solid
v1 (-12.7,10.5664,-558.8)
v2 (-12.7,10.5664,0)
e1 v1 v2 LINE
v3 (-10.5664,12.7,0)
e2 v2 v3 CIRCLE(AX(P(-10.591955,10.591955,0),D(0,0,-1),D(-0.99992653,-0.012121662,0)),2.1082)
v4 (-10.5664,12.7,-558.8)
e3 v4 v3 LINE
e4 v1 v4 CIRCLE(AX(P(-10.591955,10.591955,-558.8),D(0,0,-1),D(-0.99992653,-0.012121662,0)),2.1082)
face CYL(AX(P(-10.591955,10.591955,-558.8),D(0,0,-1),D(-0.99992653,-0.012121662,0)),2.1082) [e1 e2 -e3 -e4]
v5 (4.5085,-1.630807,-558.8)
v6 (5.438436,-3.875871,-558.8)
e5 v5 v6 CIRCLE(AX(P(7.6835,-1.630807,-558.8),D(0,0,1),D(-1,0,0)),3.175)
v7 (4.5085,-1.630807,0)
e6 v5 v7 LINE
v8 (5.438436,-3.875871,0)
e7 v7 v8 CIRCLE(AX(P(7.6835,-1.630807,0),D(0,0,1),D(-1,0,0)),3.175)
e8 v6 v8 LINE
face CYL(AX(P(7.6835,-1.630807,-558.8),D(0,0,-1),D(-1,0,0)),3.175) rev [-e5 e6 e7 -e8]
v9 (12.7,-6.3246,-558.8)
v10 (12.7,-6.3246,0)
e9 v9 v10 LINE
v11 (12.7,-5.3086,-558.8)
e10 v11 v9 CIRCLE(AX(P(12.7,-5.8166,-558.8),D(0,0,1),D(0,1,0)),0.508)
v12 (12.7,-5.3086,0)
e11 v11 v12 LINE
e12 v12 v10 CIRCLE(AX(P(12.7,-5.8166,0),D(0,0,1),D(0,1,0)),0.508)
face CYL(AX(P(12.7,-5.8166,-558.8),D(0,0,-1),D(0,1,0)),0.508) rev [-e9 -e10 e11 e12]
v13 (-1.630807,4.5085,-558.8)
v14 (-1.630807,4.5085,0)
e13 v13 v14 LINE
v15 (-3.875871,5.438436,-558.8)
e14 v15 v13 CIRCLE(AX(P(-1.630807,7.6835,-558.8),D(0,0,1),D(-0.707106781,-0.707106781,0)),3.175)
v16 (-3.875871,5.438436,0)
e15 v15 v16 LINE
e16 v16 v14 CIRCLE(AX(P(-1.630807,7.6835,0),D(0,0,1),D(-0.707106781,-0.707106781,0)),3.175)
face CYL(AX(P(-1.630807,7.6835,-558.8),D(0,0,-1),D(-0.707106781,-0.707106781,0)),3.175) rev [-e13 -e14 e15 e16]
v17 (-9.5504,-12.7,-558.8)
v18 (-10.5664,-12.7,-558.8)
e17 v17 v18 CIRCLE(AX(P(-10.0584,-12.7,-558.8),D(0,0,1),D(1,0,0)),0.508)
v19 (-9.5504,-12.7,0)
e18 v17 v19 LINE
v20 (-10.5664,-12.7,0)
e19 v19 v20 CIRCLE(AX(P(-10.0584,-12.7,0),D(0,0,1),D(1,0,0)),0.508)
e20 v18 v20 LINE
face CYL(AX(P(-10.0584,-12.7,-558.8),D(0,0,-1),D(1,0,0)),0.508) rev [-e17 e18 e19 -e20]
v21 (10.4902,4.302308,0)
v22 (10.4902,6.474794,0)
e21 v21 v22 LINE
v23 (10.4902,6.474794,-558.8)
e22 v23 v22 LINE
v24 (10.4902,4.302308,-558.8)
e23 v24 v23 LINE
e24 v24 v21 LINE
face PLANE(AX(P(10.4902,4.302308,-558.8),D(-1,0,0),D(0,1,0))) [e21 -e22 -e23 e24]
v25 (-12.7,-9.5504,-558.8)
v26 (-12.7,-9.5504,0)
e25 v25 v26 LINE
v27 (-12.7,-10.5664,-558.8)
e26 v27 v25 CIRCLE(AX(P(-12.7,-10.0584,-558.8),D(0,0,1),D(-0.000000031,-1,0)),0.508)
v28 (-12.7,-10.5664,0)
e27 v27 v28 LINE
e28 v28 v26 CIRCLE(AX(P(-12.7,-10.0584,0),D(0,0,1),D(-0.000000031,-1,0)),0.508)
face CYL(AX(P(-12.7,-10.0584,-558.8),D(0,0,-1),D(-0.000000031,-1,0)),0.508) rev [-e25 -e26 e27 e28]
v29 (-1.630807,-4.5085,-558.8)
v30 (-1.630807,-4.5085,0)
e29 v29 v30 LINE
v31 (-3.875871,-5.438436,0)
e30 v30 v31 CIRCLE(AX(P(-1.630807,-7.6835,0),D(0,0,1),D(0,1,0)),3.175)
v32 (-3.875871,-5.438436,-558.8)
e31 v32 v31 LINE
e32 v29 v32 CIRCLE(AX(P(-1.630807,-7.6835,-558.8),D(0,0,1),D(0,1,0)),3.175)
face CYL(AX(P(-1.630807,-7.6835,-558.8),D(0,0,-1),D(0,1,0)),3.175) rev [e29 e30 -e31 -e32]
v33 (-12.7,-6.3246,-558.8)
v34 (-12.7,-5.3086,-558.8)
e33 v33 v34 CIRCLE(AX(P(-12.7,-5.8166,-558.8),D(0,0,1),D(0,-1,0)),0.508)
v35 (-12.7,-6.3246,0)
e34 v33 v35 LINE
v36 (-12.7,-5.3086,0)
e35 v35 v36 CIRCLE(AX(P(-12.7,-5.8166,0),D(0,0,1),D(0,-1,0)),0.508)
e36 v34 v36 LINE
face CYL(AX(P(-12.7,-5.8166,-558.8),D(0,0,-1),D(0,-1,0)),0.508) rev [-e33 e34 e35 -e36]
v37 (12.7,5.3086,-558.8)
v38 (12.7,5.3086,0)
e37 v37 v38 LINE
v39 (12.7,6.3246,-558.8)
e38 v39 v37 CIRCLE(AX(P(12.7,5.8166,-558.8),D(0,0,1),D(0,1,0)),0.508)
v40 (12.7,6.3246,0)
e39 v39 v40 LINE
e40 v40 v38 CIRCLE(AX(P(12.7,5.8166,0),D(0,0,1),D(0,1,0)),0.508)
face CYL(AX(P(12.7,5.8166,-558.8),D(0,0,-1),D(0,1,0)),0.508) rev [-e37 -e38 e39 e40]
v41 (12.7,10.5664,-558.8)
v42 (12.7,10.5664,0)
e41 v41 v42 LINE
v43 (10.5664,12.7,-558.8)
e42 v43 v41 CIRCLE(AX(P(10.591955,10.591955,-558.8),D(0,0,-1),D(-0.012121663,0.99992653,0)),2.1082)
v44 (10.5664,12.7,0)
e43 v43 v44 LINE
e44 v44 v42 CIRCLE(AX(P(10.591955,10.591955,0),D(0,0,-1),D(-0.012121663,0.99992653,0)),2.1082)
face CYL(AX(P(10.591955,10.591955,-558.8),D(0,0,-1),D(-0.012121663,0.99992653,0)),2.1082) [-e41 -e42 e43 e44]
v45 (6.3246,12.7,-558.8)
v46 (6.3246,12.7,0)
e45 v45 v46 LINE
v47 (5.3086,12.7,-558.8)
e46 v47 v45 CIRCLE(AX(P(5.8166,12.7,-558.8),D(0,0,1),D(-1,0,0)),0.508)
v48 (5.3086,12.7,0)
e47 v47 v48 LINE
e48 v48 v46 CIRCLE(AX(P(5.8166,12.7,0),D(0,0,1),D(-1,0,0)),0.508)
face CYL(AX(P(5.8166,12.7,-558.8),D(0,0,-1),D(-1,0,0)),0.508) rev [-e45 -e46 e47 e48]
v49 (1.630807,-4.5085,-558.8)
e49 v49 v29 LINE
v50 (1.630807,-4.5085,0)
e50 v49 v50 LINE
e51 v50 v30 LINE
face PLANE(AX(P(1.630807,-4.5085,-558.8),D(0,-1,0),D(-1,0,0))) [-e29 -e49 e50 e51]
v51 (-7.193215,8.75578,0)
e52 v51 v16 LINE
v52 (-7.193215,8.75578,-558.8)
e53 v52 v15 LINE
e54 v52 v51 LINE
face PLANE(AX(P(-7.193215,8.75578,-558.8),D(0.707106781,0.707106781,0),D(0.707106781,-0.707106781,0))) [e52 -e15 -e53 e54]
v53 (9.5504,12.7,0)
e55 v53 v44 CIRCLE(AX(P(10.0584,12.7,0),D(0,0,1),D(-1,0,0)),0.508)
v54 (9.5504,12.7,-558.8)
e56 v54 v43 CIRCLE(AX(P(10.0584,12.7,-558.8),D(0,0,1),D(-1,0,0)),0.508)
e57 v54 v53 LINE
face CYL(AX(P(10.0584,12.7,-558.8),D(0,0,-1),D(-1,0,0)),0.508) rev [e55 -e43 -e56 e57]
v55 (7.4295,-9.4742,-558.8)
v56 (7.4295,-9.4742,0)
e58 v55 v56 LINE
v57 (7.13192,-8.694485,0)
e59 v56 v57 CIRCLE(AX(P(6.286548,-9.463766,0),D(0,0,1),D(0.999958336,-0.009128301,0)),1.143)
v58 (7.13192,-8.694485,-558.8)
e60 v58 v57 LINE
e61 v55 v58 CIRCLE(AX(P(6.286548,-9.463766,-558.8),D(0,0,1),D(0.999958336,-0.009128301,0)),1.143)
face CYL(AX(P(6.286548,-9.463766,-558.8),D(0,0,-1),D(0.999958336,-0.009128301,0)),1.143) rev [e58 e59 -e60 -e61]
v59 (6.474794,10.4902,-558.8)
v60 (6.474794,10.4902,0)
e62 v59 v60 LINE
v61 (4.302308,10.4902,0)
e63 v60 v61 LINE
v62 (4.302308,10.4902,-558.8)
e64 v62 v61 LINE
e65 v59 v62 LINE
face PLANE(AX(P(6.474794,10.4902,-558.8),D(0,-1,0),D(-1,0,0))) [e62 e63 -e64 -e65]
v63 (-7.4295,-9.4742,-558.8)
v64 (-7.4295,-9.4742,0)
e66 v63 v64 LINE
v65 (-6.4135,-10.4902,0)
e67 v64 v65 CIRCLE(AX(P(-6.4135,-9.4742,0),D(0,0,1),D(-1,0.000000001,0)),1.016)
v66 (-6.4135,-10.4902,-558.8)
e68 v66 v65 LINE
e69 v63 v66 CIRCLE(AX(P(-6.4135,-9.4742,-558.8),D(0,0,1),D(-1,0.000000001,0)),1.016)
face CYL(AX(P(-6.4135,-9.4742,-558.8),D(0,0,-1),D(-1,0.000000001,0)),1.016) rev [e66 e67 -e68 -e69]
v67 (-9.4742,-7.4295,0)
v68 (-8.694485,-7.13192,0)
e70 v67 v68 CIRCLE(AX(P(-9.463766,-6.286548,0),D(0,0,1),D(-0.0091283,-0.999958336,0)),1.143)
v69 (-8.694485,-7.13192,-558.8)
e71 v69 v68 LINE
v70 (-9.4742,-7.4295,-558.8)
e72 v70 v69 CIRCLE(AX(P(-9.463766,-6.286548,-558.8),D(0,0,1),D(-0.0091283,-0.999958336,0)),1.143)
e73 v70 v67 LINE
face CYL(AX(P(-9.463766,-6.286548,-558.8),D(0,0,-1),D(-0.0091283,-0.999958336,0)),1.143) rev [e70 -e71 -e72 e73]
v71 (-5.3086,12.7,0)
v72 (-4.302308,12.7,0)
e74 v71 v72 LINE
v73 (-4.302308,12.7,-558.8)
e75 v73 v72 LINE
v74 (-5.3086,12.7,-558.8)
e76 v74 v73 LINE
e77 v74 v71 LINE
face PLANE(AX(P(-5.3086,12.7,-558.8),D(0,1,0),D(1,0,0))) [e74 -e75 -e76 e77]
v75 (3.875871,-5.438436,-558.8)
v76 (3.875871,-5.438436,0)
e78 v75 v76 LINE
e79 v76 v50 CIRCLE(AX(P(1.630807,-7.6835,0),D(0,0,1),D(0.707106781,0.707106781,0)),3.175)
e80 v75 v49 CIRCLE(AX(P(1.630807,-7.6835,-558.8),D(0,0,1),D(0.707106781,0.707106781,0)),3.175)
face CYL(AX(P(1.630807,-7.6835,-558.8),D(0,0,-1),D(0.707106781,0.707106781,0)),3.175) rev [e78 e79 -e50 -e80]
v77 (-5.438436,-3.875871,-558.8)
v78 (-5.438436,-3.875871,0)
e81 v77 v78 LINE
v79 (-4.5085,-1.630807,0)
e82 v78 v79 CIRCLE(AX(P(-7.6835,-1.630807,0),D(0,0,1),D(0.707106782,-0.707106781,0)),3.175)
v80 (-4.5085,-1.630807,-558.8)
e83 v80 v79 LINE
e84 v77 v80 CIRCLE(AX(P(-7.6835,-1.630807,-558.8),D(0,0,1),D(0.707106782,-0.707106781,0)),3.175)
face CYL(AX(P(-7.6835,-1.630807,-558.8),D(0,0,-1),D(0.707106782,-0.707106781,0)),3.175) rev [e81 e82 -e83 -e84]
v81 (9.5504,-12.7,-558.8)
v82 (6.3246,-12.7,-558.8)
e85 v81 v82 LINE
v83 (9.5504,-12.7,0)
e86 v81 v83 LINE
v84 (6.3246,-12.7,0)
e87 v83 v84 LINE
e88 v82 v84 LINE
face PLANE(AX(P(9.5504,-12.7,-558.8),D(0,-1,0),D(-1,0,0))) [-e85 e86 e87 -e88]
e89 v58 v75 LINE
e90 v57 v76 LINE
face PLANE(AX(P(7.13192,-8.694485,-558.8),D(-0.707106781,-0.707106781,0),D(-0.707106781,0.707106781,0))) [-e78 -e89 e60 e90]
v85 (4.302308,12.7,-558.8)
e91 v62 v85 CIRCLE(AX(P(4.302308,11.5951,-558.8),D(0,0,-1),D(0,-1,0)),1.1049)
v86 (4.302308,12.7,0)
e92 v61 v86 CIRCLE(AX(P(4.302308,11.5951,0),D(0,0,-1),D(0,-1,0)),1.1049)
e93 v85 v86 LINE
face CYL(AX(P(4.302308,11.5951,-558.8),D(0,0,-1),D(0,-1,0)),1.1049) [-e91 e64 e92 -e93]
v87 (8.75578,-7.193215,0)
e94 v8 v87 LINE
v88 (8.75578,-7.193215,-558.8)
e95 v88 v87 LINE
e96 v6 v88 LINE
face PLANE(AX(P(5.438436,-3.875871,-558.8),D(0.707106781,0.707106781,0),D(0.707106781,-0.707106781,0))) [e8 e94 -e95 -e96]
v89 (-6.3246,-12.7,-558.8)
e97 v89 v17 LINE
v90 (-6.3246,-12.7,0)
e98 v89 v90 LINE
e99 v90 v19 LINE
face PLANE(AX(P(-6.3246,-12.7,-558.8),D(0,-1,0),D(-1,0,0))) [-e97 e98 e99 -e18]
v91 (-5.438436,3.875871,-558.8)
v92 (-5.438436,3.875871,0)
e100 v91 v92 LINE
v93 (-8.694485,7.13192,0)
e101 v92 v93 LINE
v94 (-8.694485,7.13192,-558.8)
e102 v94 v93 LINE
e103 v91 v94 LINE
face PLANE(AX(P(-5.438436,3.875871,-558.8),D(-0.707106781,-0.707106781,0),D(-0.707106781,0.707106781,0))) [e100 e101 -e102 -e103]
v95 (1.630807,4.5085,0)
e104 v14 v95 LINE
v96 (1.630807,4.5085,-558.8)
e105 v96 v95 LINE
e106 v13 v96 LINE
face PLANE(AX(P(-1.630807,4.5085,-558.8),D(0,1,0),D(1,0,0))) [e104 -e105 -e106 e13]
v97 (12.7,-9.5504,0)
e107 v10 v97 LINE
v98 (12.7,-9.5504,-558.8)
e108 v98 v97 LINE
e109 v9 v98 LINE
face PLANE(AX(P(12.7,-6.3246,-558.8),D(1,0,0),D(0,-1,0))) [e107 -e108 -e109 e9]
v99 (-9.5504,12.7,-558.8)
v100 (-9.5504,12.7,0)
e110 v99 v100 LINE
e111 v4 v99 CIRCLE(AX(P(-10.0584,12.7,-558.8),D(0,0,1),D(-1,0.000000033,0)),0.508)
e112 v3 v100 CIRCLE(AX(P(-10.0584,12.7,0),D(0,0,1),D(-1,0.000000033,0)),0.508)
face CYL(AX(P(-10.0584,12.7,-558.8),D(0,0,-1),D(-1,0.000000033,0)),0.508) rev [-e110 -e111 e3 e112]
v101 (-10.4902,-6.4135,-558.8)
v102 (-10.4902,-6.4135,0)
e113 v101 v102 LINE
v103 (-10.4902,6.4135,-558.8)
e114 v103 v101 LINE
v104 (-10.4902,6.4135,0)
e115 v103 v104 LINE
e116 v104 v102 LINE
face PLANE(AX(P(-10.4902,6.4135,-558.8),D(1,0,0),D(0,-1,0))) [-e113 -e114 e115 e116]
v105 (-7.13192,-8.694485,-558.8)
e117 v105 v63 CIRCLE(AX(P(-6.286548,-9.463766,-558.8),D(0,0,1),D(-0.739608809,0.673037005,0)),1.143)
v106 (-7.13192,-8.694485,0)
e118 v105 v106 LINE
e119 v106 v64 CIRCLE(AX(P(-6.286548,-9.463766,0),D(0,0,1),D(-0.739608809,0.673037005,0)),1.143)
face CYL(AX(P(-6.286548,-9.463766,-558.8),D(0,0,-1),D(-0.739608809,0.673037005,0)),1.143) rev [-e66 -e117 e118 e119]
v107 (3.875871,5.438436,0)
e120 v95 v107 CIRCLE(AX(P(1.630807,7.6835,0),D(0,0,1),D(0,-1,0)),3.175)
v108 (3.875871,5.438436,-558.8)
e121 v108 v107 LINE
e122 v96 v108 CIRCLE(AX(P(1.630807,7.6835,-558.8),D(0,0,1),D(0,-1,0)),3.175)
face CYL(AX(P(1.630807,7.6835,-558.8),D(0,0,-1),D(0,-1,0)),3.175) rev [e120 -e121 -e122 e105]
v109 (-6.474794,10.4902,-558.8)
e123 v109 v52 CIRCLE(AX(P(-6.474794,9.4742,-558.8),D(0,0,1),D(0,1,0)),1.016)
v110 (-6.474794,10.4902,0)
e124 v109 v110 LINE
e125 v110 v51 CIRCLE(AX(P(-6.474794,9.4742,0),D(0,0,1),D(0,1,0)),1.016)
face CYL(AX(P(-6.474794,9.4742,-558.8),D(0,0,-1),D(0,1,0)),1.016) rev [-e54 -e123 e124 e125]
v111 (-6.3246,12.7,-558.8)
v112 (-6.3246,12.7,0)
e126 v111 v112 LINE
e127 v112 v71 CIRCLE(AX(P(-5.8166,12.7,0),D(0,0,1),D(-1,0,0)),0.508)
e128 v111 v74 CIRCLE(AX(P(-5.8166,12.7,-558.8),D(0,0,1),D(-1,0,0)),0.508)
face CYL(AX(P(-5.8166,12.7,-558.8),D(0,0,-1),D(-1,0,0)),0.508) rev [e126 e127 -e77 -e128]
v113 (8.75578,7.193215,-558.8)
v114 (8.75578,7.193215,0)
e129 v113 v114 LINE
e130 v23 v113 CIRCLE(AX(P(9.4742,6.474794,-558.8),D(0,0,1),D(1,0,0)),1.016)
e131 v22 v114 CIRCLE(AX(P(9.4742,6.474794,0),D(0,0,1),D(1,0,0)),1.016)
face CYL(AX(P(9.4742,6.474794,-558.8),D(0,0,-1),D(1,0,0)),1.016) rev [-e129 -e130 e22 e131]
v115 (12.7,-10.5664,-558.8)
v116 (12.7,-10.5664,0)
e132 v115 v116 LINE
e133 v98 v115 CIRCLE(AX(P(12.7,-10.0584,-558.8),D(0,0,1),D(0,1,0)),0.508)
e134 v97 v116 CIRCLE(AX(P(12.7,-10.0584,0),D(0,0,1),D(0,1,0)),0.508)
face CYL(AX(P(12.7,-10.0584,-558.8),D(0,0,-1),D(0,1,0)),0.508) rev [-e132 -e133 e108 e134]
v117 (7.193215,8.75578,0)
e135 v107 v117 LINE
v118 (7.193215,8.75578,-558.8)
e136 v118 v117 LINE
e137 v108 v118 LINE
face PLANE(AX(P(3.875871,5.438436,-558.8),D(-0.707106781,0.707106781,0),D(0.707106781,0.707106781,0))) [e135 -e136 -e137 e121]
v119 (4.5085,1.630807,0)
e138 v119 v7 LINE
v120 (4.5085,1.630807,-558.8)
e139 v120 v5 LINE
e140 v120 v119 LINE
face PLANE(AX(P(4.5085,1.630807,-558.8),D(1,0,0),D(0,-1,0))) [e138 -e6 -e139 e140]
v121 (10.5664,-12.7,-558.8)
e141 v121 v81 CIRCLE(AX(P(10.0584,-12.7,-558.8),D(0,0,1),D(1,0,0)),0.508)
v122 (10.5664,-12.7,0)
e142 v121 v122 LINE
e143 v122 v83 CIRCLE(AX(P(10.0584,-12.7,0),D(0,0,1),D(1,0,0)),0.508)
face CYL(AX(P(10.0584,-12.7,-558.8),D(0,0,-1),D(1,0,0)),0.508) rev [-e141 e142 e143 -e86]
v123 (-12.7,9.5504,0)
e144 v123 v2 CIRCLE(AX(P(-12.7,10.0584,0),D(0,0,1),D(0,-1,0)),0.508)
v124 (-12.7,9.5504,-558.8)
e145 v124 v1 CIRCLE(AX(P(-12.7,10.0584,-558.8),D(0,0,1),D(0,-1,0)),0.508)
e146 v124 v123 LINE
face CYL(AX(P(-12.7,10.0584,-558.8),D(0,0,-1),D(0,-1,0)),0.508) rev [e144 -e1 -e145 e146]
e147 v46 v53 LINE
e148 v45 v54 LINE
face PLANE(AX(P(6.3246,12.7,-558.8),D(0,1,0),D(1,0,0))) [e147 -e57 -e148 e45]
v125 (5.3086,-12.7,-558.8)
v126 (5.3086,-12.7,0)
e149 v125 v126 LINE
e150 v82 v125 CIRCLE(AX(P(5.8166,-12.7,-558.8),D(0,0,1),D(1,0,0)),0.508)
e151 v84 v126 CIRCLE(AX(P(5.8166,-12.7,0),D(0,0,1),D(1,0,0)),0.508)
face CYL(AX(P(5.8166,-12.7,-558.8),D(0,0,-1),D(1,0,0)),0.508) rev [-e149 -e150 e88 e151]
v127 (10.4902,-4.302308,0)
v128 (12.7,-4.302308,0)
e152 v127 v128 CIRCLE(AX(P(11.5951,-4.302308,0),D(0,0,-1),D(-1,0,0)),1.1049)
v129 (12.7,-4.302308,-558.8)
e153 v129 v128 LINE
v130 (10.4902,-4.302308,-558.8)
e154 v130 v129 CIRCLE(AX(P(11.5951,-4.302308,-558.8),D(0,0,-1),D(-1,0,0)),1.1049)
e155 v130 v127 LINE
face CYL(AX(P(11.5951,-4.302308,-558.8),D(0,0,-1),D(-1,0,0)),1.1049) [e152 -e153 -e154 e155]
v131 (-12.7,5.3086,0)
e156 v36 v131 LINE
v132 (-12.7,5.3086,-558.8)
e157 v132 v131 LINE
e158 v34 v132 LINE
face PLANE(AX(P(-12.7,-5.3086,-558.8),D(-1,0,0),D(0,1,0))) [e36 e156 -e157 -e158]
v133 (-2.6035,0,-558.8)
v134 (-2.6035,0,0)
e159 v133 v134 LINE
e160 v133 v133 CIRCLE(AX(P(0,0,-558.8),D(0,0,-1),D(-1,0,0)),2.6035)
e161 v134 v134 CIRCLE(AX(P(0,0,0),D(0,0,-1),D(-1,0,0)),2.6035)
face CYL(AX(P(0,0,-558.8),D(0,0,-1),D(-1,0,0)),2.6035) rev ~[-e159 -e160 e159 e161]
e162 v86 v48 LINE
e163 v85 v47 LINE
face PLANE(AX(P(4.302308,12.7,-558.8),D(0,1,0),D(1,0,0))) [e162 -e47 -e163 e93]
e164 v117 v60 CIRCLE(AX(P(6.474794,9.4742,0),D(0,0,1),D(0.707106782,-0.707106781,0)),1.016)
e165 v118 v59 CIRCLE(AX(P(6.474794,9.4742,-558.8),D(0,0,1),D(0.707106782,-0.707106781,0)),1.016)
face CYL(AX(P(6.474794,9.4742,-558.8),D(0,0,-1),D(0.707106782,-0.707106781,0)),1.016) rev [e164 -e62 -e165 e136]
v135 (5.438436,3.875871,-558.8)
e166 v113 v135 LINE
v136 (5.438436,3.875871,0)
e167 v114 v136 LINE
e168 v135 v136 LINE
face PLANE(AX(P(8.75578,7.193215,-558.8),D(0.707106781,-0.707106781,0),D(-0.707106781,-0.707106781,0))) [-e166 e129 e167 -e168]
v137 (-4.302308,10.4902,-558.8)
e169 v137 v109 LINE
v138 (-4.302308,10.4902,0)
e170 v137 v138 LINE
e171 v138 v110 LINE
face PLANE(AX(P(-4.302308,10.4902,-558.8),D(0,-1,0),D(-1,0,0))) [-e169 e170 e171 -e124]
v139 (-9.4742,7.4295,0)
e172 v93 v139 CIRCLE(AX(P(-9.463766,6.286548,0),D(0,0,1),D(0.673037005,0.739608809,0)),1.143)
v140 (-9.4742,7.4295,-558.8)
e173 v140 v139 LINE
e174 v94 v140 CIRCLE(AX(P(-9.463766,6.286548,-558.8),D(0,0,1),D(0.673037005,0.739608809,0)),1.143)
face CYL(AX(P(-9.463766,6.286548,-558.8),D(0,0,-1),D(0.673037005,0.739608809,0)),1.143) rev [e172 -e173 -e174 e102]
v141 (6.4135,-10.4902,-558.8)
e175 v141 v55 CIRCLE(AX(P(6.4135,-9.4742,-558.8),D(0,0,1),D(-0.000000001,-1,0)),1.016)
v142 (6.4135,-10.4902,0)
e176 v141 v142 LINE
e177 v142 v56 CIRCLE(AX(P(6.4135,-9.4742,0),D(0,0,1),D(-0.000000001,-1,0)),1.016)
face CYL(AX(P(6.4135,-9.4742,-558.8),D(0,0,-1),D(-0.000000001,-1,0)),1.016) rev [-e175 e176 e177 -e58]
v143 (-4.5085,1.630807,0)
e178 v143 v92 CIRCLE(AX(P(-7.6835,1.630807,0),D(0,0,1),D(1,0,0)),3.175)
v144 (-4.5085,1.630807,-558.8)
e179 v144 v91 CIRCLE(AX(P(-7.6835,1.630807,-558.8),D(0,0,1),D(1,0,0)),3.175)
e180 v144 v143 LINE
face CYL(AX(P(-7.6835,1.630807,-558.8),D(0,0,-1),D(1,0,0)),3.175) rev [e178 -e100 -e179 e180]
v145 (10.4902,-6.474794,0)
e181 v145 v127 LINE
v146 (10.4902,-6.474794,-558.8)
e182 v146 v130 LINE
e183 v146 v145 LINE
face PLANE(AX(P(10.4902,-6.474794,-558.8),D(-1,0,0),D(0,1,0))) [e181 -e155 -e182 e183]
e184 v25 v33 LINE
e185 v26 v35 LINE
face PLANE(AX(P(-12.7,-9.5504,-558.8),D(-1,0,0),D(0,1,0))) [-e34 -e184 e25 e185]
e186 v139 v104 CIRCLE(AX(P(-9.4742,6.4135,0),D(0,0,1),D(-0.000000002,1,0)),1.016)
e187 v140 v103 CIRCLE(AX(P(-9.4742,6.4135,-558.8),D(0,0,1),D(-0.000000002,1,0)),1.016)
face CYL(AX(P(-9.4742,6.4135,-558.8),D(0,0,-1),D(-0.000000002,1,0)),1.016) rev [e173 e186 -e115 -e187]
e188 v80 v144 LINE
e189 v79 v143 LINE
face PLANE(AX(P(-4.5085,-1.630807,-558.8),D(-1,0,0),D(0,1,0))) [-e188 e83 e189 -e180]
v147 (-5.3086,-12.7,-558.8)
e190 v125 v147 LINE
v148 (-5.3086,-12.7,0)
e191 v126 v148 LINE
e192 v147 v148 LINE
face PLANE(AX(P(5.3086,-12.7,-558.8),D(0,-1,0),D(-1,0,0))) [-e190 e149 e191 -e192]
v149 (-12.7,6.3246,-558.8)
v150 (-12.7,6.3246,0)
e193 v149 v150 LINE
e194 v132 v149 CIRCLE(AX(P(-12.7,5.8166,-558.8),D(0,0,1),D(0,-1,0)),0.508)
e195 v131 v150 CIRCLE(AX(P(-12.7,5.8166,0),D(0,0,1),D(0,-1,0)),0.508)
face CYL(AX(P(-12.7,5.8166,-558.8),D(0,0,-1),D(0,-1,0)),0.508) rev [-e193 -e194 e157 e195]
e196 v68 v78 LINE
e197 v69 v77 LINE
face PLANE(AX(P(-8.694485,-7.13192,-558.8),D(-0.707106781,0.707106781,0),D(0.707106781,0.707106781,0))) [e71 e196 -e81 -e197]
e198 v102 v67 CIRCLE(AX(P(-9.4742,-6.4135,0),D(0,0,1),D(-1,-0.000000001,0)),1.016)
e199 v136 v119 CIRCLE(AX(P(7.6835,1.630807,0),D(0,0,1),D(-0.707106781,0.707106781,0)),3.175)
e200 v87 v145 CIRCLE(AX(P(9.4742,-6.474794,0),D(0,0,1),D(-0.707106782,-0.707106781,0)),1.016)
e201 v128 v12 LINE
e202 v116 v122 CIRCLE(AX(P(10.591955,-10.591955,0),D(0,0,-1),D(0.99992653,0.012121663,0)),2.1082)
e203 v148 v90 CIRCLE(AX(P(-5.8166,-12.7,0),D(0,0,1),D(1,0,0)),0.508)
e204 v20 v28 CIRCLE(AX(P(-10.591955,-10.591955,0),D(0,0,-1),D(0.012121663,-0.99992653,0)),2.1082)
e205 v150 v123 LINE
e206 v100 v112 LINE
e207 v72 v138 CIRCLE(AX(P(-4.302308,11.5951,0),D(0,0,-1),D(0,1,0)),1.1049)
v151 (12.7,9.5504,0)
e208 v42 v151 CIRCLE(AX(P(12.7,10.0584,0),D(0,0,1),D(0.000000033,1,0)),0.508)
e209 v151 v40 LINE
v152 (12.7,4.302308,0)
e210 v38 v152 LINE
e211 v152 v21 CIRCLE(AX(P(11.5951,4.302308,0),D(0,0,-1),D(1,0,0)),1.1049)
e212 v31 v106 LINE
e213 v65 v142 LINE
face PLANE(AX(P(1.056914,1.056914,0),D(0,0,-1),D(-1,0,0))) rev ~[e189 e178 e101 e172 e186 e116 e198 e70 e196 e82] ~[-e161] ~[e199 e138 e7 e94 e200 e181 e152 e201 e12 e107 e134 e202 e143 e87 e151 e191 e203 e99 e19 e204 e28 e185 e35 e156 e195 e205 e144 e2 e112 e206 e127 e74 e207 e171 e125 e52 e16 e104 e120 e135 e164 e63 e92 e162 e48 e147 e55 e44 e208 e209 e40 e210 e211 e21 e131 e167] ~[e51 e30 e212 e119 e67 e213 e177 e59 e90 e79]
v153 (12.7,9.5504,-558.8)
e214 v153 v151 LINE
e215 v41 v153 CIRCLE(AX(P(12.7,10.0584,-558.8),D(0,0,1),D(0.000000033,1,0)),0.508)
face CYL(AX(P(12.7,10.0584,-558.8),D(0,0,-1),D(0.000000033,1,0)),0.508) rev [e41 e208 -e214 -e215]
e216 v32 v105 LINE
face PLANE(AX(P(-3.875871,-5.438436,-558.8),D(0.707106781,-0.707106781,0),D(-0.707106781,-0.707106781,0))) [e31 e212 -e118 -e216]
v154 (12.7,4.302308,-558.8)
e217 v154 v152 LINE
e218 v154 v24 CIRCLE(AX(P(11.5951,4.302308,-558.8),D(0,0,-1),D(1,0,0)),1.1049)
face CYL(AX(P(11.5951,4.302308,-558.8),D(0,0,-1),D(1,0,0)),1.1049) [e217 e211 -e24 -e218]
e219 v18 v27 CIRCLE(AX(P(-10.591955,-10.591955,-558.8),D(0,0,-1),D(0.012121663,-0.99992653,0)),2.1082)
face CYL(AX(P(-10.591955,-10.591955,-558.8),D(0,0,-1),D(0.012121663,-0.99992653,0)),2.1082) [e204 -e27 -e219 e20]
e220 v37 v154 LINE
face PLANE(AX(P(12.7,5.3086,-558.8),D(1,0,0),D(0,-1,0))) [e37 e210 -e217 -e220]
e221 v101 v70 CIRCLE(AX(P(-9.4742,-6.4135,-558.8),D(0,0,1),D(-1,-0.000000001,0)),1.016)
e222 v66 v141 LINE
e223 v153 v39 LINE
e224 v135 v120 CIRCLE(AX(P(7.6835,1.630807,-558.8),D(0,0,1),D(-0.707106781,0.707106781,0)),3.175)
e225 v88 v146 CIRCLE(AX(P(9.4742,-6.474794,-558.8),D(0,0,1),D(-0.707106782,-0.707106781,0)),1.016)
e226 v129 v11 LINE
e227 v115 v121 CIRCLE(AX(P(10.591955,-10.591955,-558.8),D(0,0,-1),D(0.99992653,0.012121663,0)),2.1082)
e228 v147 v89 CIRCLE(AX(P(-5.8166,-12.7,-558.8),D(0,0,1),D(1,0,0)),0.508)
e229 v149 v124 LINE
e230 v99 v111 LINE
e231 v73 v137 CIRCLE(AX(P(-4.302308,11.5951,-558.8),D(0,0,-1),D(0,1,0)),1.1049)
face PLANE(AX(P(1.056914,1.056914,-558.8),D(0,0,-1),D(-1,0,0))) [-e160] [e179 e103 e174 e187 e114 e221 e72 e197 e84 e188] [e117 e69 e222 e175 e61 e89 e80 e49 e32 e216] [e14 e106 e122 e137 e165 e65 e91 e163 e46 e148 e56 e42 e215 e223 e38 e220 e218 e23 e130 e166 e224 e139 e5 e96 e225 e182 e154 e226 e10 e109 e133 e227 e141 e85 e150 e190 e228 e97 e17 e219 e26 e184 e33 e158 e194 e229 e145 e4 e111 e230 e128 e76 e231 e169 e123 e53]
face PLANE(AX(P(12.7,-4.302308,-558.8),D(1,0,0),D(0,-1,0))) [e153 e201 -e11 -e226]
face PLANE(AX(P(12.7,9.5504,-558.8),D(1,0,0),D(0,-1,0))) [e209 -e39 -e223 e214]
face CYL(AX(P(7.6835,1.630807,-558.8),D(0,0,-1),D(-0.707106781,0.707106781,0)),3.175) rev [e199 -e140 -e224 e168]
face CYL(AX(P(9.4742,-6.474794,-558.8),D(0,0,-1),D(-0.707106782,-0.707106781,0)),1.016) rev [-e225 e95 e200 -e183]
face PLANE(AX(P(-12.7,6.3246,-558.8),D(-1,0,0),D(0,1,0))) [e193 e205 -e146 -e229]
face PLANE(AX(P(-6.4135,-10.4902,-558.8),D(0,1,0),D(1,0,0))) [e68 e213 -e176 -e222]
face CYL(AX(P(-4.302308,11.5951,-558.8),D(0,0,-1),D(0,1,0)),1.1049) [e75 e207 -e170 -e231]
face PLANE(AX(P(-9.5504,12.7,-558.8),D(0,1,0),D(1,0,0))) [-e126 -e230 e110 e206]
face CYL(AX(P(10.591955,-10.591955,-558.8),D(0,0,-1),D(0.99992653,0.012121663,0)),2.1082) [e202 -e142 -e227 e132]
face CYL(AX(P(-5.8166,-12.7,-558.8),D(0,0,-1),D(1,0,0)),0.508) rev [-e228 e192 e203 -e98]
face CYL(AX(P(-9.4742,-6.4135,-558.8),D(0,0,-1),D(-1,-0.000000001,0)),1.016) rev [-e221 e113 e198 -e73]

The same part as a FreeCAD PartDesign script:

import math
import FreeCAD as App
import Part
import Sketcher
Q = App.Units.Quantity

doc = App.newDocument("Part")
params = doc.addObject("Spreadsheet::Sheet", "Params")
for row, (alias, value) in enumerate([
    ("sketch1_radius", "0.02 in"),
    ("sketch1_radius2", "0.04 in"),
    ("sketch1_diameter", "0.205 in"),
    ("sketch1_radius3", "0.083 in"),
    ("sketch1_radius4", "0.125 in"),
    ("pad1_length", "22 in"),
], start=1):
    params.set(f"A{row}", alias)
    params.set(f"B{row}", "=" + value)
    params.setAlias(f"B{row}", alias)

body = doc.addObject("PartDesign::Body", "Body")

# Sketch on XY plane
sketch1 = body.newObject("Sketcher::SketchObject", "Sketch")
sketch1.AttachmentSupport = (doc.getObject("XY_Plane"), [""])
sketch1.MapMode = "FlatFace"
sketch1.AttachmentOffset = App.Placement(App.Vector(0, 0, -22 * 25.4), App.Rotation())
sketch1.addGeometry([
    Part.LineSegment(App.Vector(-12.7, -9.5504, 0), App.Vector(-12.7, -6.3246, 0)),  # 0
    Part.ArcOfCircle(Part.Circle(App.Vector(-12.7, -5.8166, 0), App.Vector(0, 0, 1), 0.508), math.radians(-90), math.radians(90)),  # 1
    Part.LineSegment(App.Vector(-12.7, -5.3086, 0), App.Vector(-12.7, 5.3086, 0)),  # 2
    Part.ArcOfCircle(Part.Circle(App.Vector(-12.7, 5.8166, 0), App.Vector(0, 0, 1), 0.508), math.radians(-90), math.radians(90)),  # 3
    Part.LineSegment(App.Vector(-12.7, 6.3246, 0), App.Vector(-12.7, 9.5504, 0)),  # 4
    Part.ArcOfCircle(Part.Circle(App.Vector(-12.7, 10.0584, 0), App.Vector(0, 0, 1), 0.508), math.radians(-90), math.radians(90.000004)),  # 5
    Part.ArcOfCircle(Part.Circle(App.Vector(-10.591955, 10.591955, 0), App.Vector(0, 0, 1), 2.1082), math.radians(89.305463), math.radians(180.694537)),  # 6
    Part.ArcOfCircle(Part.Circle(App.Vector(-10.0584, 12.7, 0), App.Vector(0, 0, 1), 0.508), math.radians(179.999998), math.radians(360)),  # 7
    Part.LineSegment(App.Vector(-9.5504, 12.7, 0), App.Vector(-6.3246, 12.7, 0)),  # 8
    Part.ArcOfCircle(Part.Circle(App.Vector(-5.8166, 12.7, 0), App.Vector(0, 0, 1), 0.508), math.radians(180), math.radians(360)),  # 9
    Part.LineSegment(App.Vector(-5.3086, 12.7, 0), App.Vector(-4.302308, 12.7, 0)),  # 10
    Part.ArcOfCircle(Part.Circle(App.Vector(-4.302308, 11.5951, 0), App.Vector(0, 0, 1), 1.1049), math.radians(-90), math.radians(90)),  # 11
    Part.LineSegment(App.Vector(-4.302308, 10.4902, 0), App.Vector(-6.474794, 10.4902, 0)),  # 12
    Part.ArcOfCircle(Part.Circle(App.Vector(-6.474794, 9.4742, 0), App.Vector(0, 0, 1), 1.016), math.radians(90), math.radians(225)),  # 13
    Part.LineSegment(App.Vector(-7.193215, 8.75578, 0), App.Vector(-3.875871, 5.438436, 0)),  # 14
    Part.ArcOfCircle(Part.Circle(App.Vector(-1.630807, 7.6835, 0), App.Vector(0, 0, 1), 3.175), math.radians(-135), math.radians(-90)),  # 15
    Part.LineSegment(App.Vector(-1.630807, 4.5085, 0), App.Vector(1.630807, 4.5085, 0)),  # 16
    Part.ArcOfCircle(Part.Circle(App.Vector(1.630807, 7.6835, 0), App.Vector(0, 0, 1), 3.175), math.radians(-90), math.radians(-45)),  # 17
    Part.LineSegment(App.Vector(3.875871, 5.438436, 0), App.Vector(7.193215, 8.75578, 0)),  # 18
    Part.ArcOfCircle(Part.Circle(App.Vector(6.474794, 9.4742, 0), App.Vector(0, 0, 1), 1.016), math.radians(-45), math.radians(90)),  # 19
    Part.LineSegment(App.Vector(6.474794, 10.4902, 0), App.Vector(4.302308, 10.4902, 0)),  # 20
    Part.ArcOfCircle(Part.Circle(App.Vector(4.302308, 11.5951, 0), App.Vector(0, 0, 1), 1.1049), math.radians(90), math.radians(270)),  # 21
    Part.LineSegment(App.Vector(4.302308, 12.7, 0), App.Vector(5.3086, 12.7, 0)),  # 22
    Part.ArcOfCircle(Part.Circle(App.Vector(5.8166, 12.7, 0), App.Vector(0, 0, 1), 0.508), math.radians(180), math.radians(360)),  # 23
    Part.LineSegment(App.Vector(6.3246, 12.7, 0), App.Vector(9.5504, 12.7, 0)),  # 24
    Part.ArcOfCircle(Part.Circle(App.Vector(10.0584, 12.7, 0), App.Vector(0, 0, 1), 0.508), math.radians(180), math.radians(360)),  # 25
    Part.ArcOfCircle(Part.Circle(App.Vector(10.591955, 10.591955, 0), App.Vector(0, 0, 1), 2.1082), math.radians(-0.694537), math.radians(90.694537)),  # 26
    Part.ArcOfCircle(Part.Circle(App.Vector(12.7, 10.0584, 0), App.Vector(0, 0, 1), 0.508), math.radians(89.999998), math.radians(270)),  # 27
    Part.LineSegment(App.Vector(12.7, 9.5504, 0), App.Vector(12.7, 6.3246, 0)),  # 28
    Part.ArcOfCircle(Part.Circle(App.Vector(12.7, 5.8166, 0), App.Vector(0, 0, 1), 0.508), math.radians(90), math.radians(270)),  # 29
    Part.LineSegment(App.Vector(12.7, 5.3086, 0), App.Vector(12.7, 4.302308, 0)),  # 30
    Part.ArcOfCircle(Part.Circle(App.Vector(11.5951, 4.302308, 0), App.Vector(0, 0, 1), 1.1049), math.radians(180), math.radians(360)),  # 31
    Part.LineSegment(App.Vector(10.4902, 4.302308, 0), App.Vector(10.4902, 6.474794, 0)),  # 32
    Part.ArcOfCircle(Part.Circle(App.Vector(9.4742, 6.474794, 0), App.Vector(0, 0, 1), 1.016), math.radians(0), math.radians(135)),  # 33
    Part.LineSegment(App.Vector(8.75578, 7.193215, 0), App.Vector(5.438436, 3.875871, 0)),  # 34
    Part.ArcOfCircle(Part.Circle(App.Vector(7.6835, 1.630807, 0), App.Vector(0, 0, 1), 3.175), math.radians(135), math.radians(180)),  # 35
    Part.LineSegment(App.Vector(4.5085, 1.630807, 0), App.Vector(4.5085, -1.630807, 0)),  # 36
    Part.ArcOfCircle(Part.Circle(App.Vector(7.6835, -1.630807, 0), App.Vector(0, 0, 1), 3.175), math.radians(180), math.radians(225)),  # 37
    Part.LineSegment(App.Vector(5.438436, -3.875871, 0), App.Vector(8.75578, -7.193215, 0)),  # 38
    Part.ArcOfCircle(Part.Circle(App.Vector(9.4742, -6.474794, 0), App.Vector(0, 0, 1), 1.016), math.radians(-135), math.radians(0)),  # 39
    Part.LineSegment(App.Vector(10.4902, -6.474794, 0), App.Vector(10.4902, -4.302308, 0)),  # 40
    Part.ArcOfCircle(Part.Circle(App.Vector(11.5951, -4.302308, 0), App.Vector(0, 0, 1), 1.1049), math.radians(0), math.radians(180)),  # 41
    Part.LineSegment(App.Vector(12.7, -4.302308, 0), App.Vector(12.7, -5.3086, 0)),  # 42
    Part.ArcOfCircle(Part.Circle(App.Vector(12.7, -5.8166, 0), App.Vector(0, 0, 1), 0.508), math.radians(90), math.radians(270)),  # 43
    Part.LineSegment(App.Vector(12.7, -6.3246, 0), App.Vector(12.7, -9.5504, 0)),  # 44
    Part.ArcOfCircle(Part.Circle(App.Vector(12.7, -10.0584, 0), App.Vector(0, 0, 1), 0.508), math.radians(90), math.radians(270.000002)),  # 45
    Part.ArcOfCircle(Part.Circle(App.Vector(10.591955, -10.591955, 0), App.Vector(0, 0, 1), 2.1082), math.radians(-90.694537), math.radians(0.694537)),  # 46
    Part.ArcOfCircle(Part.Circle(App.Vector(10.0584, -12.7, 0), App.Vector(0, 0, 1), 0.508), math.radians(0), math.radians(180)),  # 47
    Part.LineSegment(App.Vector(9.5504, -12.7, 0), App.Vector(6.3246, -12.7, 0)),  # 48
    Part.ArcOfCircle(Part.Circle(App.Vector(5.8166, -12.7, 0), App.Vector(0, 0, 1), 0.508), math.radians(0), math.radians(180)),  # 49
    Part.LineSegment(App.Vector(5.3086, -12.7, 0), App.Vector(-5.3086, -12.7, 0)),  # 50
    Part.ArcOfCircle(Part.Circle(App.Vector(-5.8166, -12.7, 0), App.Vector(0, 0, 1), 0.508), math.radians(0), math.radians(180)),  # 51
    Part.LineSegment(App.Vector(-6.3246, -12.7, 0), App.Vector(-9.5504, -12.7, 0)),  # 52
    Part.ArcOfCircle(Part.Circle(App.Vector(-10.0584, -12.7, 0), App.Vector(0, 0, 1), 0.508), math.radians(0), math.radians(180)),  # 53
    Part.ArcOfCircle(Part.Circle(App.Vector(-10.591955, -10.591955, 0), App.Vector(0, 0, 1), 2.1082), math.radians(179.305463), math.radians(270.694537)),  # 54
    Part.ArcOfCircle(Part.Circle(App.Vector(-12.7, -10.0584, 0), App.Vector(0, 0, 1), 0.508), math.radians(-90.000002), math.radians(90)),  # 55
    Part.ArcOfCircle(Part.Circle(App.Vector(-1.630807, -7.6835, 0), App.Vector(0, 0, 1), 3.175), math.radians(90), math.radians(135)),  # 56
    Part.LineSegment(App.Vector(-3.875871, -5.438436, 0), App.Vector(-7.13192, -8.694485, 0)),  # 57
    Part.ArcOfCircle(Part.Circle(App.Vector(-6.286548, -9.463766, 0), App.Vector(0, 0, 1), 1.143), math.radians(137.698103), math.radians(180.52302)),  # 58
    Part.ArcOfCircle(Part.Circle(App.Vector(-6.4135, -9.4742, 0), App.Vector(0, 0, 1), 1.016), math.radians(180), math.radians(270)),  # 59
    Part.LineSegment(App.Vector(-6.4135, -10.4902, 0), App.Vector(6.4135, -10.4902, 0)),  # 60
    Part.ArcOfCircle(Part.Circle(App.Vector(6.4135, -9.4742, 0), App.Vector(0, 0, 1), 1.016), math.radians(-90), math.radians(0)),  # 61
    Part.ArcOfCircle(Part.Circle(App.Vector(6.286548, -9.463766, 0), App.Vector(0, 0, 1), 1.143), math.radians(-0.52302), math.radians(42.301897)),  # 62
    Part.LineSegment(App.Vector(7.13192, -8.694485, 0), App.Vector(3.875871, -5.438436, 0)),  # 63
    Part.ArcOfCircle(Part.Circle(App.Vector(1.630807, -7.6835, 0), App.Vector(0, 0, 1), 3.175), math.radians(45), math.radians(90)),  # 64
    Part.LineSegment(App.Vector(1.630807, -4.5085, 0), App.Vector(-1.630807, -4.5085, 0)),  # 65
    Part.Circle(App.Vector(0, 0, 0), App.Vector(0, 0, 1), 2.6035),  # 66
    Part.ArcOfCircle(Part.Circle(App.Vector(-9.4742, 6.4135, 0), App.Vector(0, 0, 1), 1.016), math.radians(90), math.radians(180)),  # 67
    Part.LineSegment(App.Vector(-10.4902, 6.4135, 0), App.Vector(-10.4902, -6.4135, 0)),  # 68
    Part.ArcOfCircle(Part.Circle(App.Vector(-9.4742, -6.4135, 0), App.Vector(0, 0, 1), 1.016), math.radians(-180), math.radians(-90)),  # 69
    Part.ArcOfCircle(Part.Circle(App.Vector(-9.463766, -6.286548, 0), App.Vector(0, 0, 1), 1.143), math.radians(-90.52302), math.radians(-47.698103)),  # 70
    Part.LineSegment(App.Vector(-8.694485, -7.13192, 0), App.Vector(-5.438436, -3.875871, 0)),  # 71
    Part.ArcOfCircle(Part.Circle(App.Vector(-7.6835, -1.630807, 0), App.Vector(0, 0, 1), 3.175), math.radians(-45), math.radians(0)),  # 72
    Part.LineSegment(App.Vector(-4.5085, -1.630807, 0), App.Vector(-4.5085, 1.630807, 0)),  # 73
    Part.ArcOfCircle(Part.Circle(App.Vector(-7.6835, 1.630807, 0), App.Vector(0, 0, 1), 3.175), math.radians(0), math.radians(45)),  # 74
    Part.LineSegment(App.Vector(-5.438436, 3.875871, 0), App.Vector(-8.694485, 7.13192, 0)),  # 75
    Part.ArcOfCircle(Part.Circle(App.Vector(-9.463766, 6.286548, 0), App.Vector(0, 0, 1), 1.143), math.radians(47.698103), math.radians(90.52302)),  # 76
], False)
sketch1.addConstraint([
    Sketcher.Constraint("Coincident", 0, 2, 1, 1),
    Sketcher.Constraint("Coincident", 1, 2, 2, 1),
    Sketcher.Constraint("Coincident", 2, 2, 3, 1),
    Sketcher.Constraint("Coincident", 3, 2, 4, 1),
    Sketcher.Constraint("Coincident", 4, 2, 5, 1),
    Sketcher.Constraint("Coincident", 5, 2, 6, 2),
    Sketcher.Constraint("Coincident", 6, 1, 7, 1),
    Sketcher.Constraint("Coincident", 7, 2, 8, 1),
    Sketcher.Constraint("Coincident", 8, 2, 9, 1),
    Sketcher.Constraint("Coincident", 9, 2, 10, 1),
    Sketcher.Constraint("Tangent", 10, 2, 11, 2),
    Sketcher.Constraint("Tangent", 11, 1, 12, 1),
    Sketcher.Constraint("Tangent", 12, 2, 13, 1),
    Sketcher.Constraint("Tangent", 13, 2, 14, 1),
    Sketcher.Constraint("Tangent", 14, 2, 15, 1),
    Sketcher.Constraint("Tangent", 15, 2, 16, 1),
    Sketcher.Constraint("Tangent", 16, 2, 17, 1),
    Sketcher.Constraint("Tangent", 17, 2, 18, 1),
    Sketcher.Constraint("Tangent", 18, 2, 19, 1),
    Sketcher.Constraint("Tangent", 19, 2, 20, 1),
    Sketcher.Constraint("Tangent", 20, 2, 21, 2),
    Sketcher.Constraint("Tangent", 21, 1, 22, 1),
    Sketcher.Constraint("Coincident", 22, 2, 23, 1),
    Sketcher.Constraint("Coincident", 23, 2, 24, 1),
    Sketcher.Constraint("Coincident", 24, 2, 25, 1),
    Sketcher.Constraint("Coincident", 25, 2, 26, 2),
    Sketcher.Constraint("Coincident", 26, 1, 27, 1),
    Sketcher.Constraint("Coincident", 27, 2, 28, 1),
    Sketcher.Constraint("Coincident", 28, 2, 29, 1),
    Sketcher.Constraint("Coincident", 29, 2, 30, 1),
    Sketcher.Constraint("Tangent", 30, 2, 31, 2),
    Sketcher.Constraint("Tangent", 31, 1, 32, 1),
    Sketcher.Constraint("Tangent", 32, 2, 33, 1),
    Sketcher.Constraint("Tangent", 33, 2, 34, 1),
    Sketcher.Constraint("Tangent", 34, 2, 35, 1),
    Sketcher.Constraint("Tangent", 35, 2, 36, 1),
    Sketcher.Constraint("Tangent", 36, 2, 37, 1),
    Sketcher.Constraint("Tangent", 37, 2, 38, 1),
    Sketcher.Constraint("Tangent", 38, 2, 39, 1),
    Sketcher.Constraint("Tangent", 39, 2, 40, 1),
    Sketcher.Constraint("Tangent", 40, 2, 41, 2),
    Sketcher.Constraint("Tangent", 41, 1, 42, 1),
    Sketcher.Constraint("Coincident", 42, 2, 43, 1),
    Sketcher.Constraint("Coincident", 43, 2, 44, 1),
    Sketcher.Constraint("Coincident", 44, 2, 45, 1),
    Sketcher.Constraint("Coincident", 45, 2, 46, 2),
    Sketcher.Constraint("Coincident", 46, 1, 47, 1),
    Sketcher.Constraint("Coincident", 47, 2, 48, 1),
    Sketcher.Constraint("Coincident", 48, 2, 49, 1),
    Sketcher.Constraint("Coincident", 49, 2, 50, 1),
    Sketcher.Constraint("Coincident", 50, 2, 51, 1),
    Sketcher.Constraint("Coincident", 51, 2, 52, 1),
    Sketcher.Constraint("Coincident", 52, 2, 53, 1),
    Sketcher.Constraint("Coincident", 53, 2, 54, 2),
    Sketcher.Constraint("Coincident", 54, 1, 55, 1),
    Sketcher.Constraint("Coincident", 55, 2, 0, 1),
    Sketcher.Constraint("Tangent", 56, 2, 57, 1),
    Sketcher.Constraint("Coincident", 57, 2, 58, 1),
    Sketcher.Constraint("Coincident", 58, 2, 59, 1),
    Sketcher.Constraint("Tangent", 59, 2, 60, 1),
    Sketcher.Constraint("Tangent", 60, 2, 61, 1),
    Sketcher.Constraint("Coincident", 61, 2, 62, 1),
    Sketcher.Constraint("Coincident", 62, 2, 63, 1),
    Sketcher.Constraint("Tangent", 63, 2, 64, 1),
    Sketcher.Constraint("Tangent", 64, 2, 65, 1),
    Sketcher.Constraint("Tangent", 65, 2, 56, 1),
    Sketcher.Constraint("Tangent", 67, 2, 68, 1),
    Sketcher.Constraint("Tangent", 68, 2, 69, 1),
    Sketcher.Constraint("Coincident", 69, 2, 70, 1),
    Sketcher.Constraint("Coincident", 70, 2, 71, 1),
    Sketcher.Constraint("Tangent", 71, 2, 72, 1),
    Sketcher.Constraint("Tangent", 72, 2, 73, 1),
    Sketcher.Constraint("Tangent", 73, 2, 74, 1),
    Sketcher.Constraint("Tangent", 74, 2, 75, 1),
    Sketcher.Constraint("Coincident", 75, 2, 76, 1),
    Sketcher.Constraint("Coincident", 76, 2, 67, 1),
    Sketcher.Constraint("Vertical", 0),
    Sketcher.Constraint("Vertical", 2),
    Sketcher.Constraint("Vertical", 4),
    Sketcher.Constraint("Horizontal", 8),
    Sketcher.Constraint("Horizontal", 10),
    Sketcher.Constraint("Horizontal", 12),
    Sketcher.Constraint("Horizontal", 16),
    Sketcher.Constraint("Horizontal", 20),
    Sketcher.Constraint("Horizontal", 22),
    Sketcher.Constraint("Horizontal", 24),
    Sketcher.Constraint("Vertical", 28),
    Sketcher.Constraint("Vertical", 30),
    Sketcher.Constraint("Vertical", 32),
    Sketcher.Constraint("Vertical", 36),
    Sketcher.Constraint("Vertical", 40),
    Sketcher.Constraint("Vertical", 42),
    Sketcher.Constraint("Vertical", 44),
    Sketcher.Constraint("Horizontal", 48),
    Sketcher.Constraint("Horizontal", 50),
    Sketcher.Constraint("Horizontal", 52),
    Sketcher.Constraint("Horizontal", 60),
    Sketcher.Constraint("Horizontal", 65),
    Sketcher.Constraint("Vertical", 68),
    Sketcher.Constraint("Vertical", 73),
    Sketcher.Constraint("Coincident", 66, 3, -1, 1),
    Sketcher.Constraint("Equal", 1, 3),
    Sketcher.Constraint("Equal", 3, 5),
    Sketcher.Constraint("Equal", 5, 7),
    Sketcher.Constraint("Equal", 7, 9),
    Sketcher.Constraint("Equal", 15, 17),
    Sketcher.Constraint("Equal", 13, 19),
    Sketcher.Constraint("Equal", 11, 21),
    Sketcher.Constraint("Equal", 9, 23),
    Sketcher.Constraint("Equal", 23, 25),
    Sketcher.Constraint("Equal", 6, 26),
    Sketcher.Constraint("Equal", 25, 27),
    Sketcher.Constraint("Equal", 27, 29),
    Sketcher.Constraint("Equal", 21, 31),
    Sketcher.Constraint("Equal", 19, 33),
    Sketcher.Constraint("Equal", 17, 35),
    Sketcher.Constraint("Equal", 35, 37),
    Sketcher.Constraint("Equal", 33, 39),
    Sketcher.Constraint("Equal", 31, 41),
    Sketcher.Constraint("Equal", 29, 43),
    Sketcher.Constraint("Equal", 43, 45),
    Sketcher.Constraint("Equal", 26, 46),
    Sketcher.Constraint("Equal", 45, 47),
    Sketcher.Constraint("Equal", 47, 49),
    Sketcher.Constraint("Equal", 49, 51),
    Sketcher.Constraint("Equal", 51, 53),
    Sketcher.Constraint("Equal", 46, 54),
    Sketcher.Constraint("Equal", 53, 55),
    Sketcher.Constraint("Equal", 37, 56),
    Sketcher.Constraint("Equal", 39, 59),
    Sketcher.Constraint("Equal", 59, 61),
    Sketcher.Constraint("Equal", 58, 62),
    Sketcher.Constraint("Equal", 56, 64),
    Sketcher.Constraint("Equal", 61, 67),
    Sketcher.Constraint("Equal", 67, 69),
    Sketcher.Constraint("Equal", 62, 70),
    Sketcher.Constraint("Equal", 64, 72),
    Sketcher.Constraint("Equal", 72, 74),
    Sketcher.Constraint("Equal", 70, 76),
    Sketcher.Constraint("Symmetric", 1, 3, 29, 3, -1, 1),
    Sketcher.Constraint("Symmetric", 3, 3, 43, 3, -1, 1),
    Sketcher.Constraint("Symmetric", 5, 3, 45, 3, -1, 1),
    Sketcher.Constraint("Symmetric", 6, 3, 46, 3, -1, 1),
    Sketcher.Constraint("Symmetric", 7, 3, 47, 3, -1, 1),
    Sketcher.Constraint("Symmetric", 9, 3, 49, 3, -1, 1),
    Sketcher.Constraint("Symmetric", 23, 3, 51, 3, -1, 1),
    Sketcher.Constraint("Symmetric", 25, 3, 53, 3, -1, 1),
    Sketcher.Constraint("Symmetric", 26, 3, 54, 3, -1, 1),
    Sketcher.Constraint("Symmetric", 27, 3, 55, 3, -1, 1),
    Sketcher.Constraint("Symmetric", 17, 3, 56, 3, -1, 1),
    Sketcher.Constraint("Symmetric", 35, 3, 72, 3, -1, 1),
    Sketcher.Constraint("Symmetric", 14, 2, 63, 2, -1, 1),
    Sketcher.Constraint("Symmetric", 37, 2, 74, 2, -1, 1),
    Sketcher.Constraint("Symmetric", 13, 3, 19, 3, -2),
    Sketcher.Constraint("Symmetric", 9, 3, 23, 3, -2),
    Sketcher.Constraint("Symmetric", 7, 3, 25, 3, -2),
    Sketcher.Constraint("Symmetric", 6, 3, 26, 3, -2),
    Sketcher.Constraint("Symmetric", 5, 3, 27, 3, -2),
    Sketcher.Constraint("Symmetric", 3, 3, 29, 3, -2),
    Sketcher.Constraint("Symmetric", 58, 3, 62, 3, -2),
    Sketcher.Constraint("Symmetric", 56, 2, 63, 2, -2),
    Sketcher.Constraint("Symmetric", 37, 2, 71, 2, -2),
    Sketcher.Constraint("Symmetric", 33, 3, 39, 3, -1),
    Sketcher.Constraint("Symmetric", 70, 3, 76, 3, -1),
    Sketcher.Constraint("Perpendicular", 14, 18),
    Sketcher.Constraint("Parallel", 18, 34),
    Sketcher.Constraint("Horizontal", 7, 3, 9, 3),
    Sketcher.Constraint("Horizontal", 25, 3, 6, 1),
    Sketcher.Constraint("Horizontal", 6, 1, 7, 2),
    Sketcher.Constraint("Horizontal", 8, 2, 9, 2),
    Sketcher.Constraint("Horizontal", 22, 2, 23, 2),
    Sketcher.Constraint("Horizontal", 46, 1, 47, 2),
    Sketcher.Constraint("Horizontal", 48, 2, 49, 2),
    Sketcher.Constraint("Horizontal", 50, 2, 51, 2),
    Sketcher.Constraint("Horizontal", 61, 3, 58, 2),
    Sketcher.Constraint("Horizontal", 58, 2, 61, 2),
    Sketcher.Constraint("Vertical", 3, 3, 5, 3),
    Sketcher.Constraint("Vertical", 55, 3, 0, 2),
    Sketcher.Constraint("Vertical", 0, 2, 1, 2),
    Sketcher.Constraint("Vertical", 2, 2, 3, 2),
    Sketcher.Constraint("Vertical", 4, 2, 5, 2),
    Sketcher.Constraint("Vertical", 26, 1, 27, 2),
    Sketcher.Constraint("Vertical", 28, 2, 29, 2),
    Sketcher.Constraint("Vertical", 42, 2, 43, 2),
    Sketcher.Constraint("Vertical", 67, 3, 69, 2),
    Sketcher.Constraint("Vertical", 69, 2, 76, 2),
    Sketcher.Constraint("Equal", 12, 20),
    Sketcher.Constraint("Equal", 52, 0),
    Sketcher.Constraint("Equal", 50, 2),
    Sketcher.Constraint("Equal", 22, 30),
    Sketcher.Constraint("Equal", 20, 32),
    Sketcher.Constraint("Equal", 65, 36),
    Sketcher.Constraint("Equal", 32, 40),
    Sketcher.Constraint("Equal", 60, 68),
    Sketcher.Constraint("Equal", 63, 71),
    Sketcher.Constraint("Radius", 1, Q("0.02 in")),
    Sketcher.Constraint("Radius", 13, Q("0.04 in")),
    Sketcher.Constraint("Diameter", 66, Q("0.205 in")),
    Sketcher.Constraint("Radius", 6, Q("0.083 in")),
    Sketcher.Constraint("Radius", 15, Q("0.125 in")),
    Sketcher.Constraint("Radius", 58, Q("0.045 in")),
    Sketcher.Constraint("DistanceX", 1, 3, -1, 1, Q("0.5 in")),
    Sketcher.Constraint("DistanceY", -1, 1, 7, 3, Q("0.5 in")),
    Sketcher.Constraint("Radius", 11, Q("0.0435 in")),
    Sketcher.Constraint("DistanceX", 8, 1, 8, 2, Q("0.127 in")),
    Sketcher.Constraint("DistanceX", 50, 2, 50, 1, Q("0.418 in")),
    Sketcher.Constraint("DistanceX", 60, 1, 60, 2, Q("0.505 in")),
    Sketcher.Constraint("DistanceY", 59, 3, -1, 1, Q("0.373 in")),
    Sketcher.Constraint("DistanceX", 67, 3, -1, 1, Q("0.373 in")),
    Sketcher.Constraint("DistanceY", -1, 1, 15, 3, Q("0.3025 in")),
    Sketcher.Constraint("Distance", 57, Q("4.604749 mm")),
    Sketcher.Constraint("DistanceX", 10, 1, 10, 2, Q("1.006292 mm")),
    Sketcher.Constraint("DistanceX", 12, 2, 12, 1, Q("2.172487 mm")),
])
sketch1.setExpression("Constraints[195]", "Params.sketch1_radius")
sketch1.setExpression("Constraints[196]", "Params.sketch1_radius2")
sketch1.setExpression("Constraints[197]", "Params.sketch1_diameter")
sketch1.setExpression("Constraints[198]", "Params.sketch1_radius3")
sketch1.setExpression("Constraints[199]", "Params.sketch1_radius4")
pad1 = body.newObject("PartDesign::Pad", "Pad")
pad1.Profile = sketch1
pad1.setExpression("Length", "Params.pad1_length")

doc.recompute()
